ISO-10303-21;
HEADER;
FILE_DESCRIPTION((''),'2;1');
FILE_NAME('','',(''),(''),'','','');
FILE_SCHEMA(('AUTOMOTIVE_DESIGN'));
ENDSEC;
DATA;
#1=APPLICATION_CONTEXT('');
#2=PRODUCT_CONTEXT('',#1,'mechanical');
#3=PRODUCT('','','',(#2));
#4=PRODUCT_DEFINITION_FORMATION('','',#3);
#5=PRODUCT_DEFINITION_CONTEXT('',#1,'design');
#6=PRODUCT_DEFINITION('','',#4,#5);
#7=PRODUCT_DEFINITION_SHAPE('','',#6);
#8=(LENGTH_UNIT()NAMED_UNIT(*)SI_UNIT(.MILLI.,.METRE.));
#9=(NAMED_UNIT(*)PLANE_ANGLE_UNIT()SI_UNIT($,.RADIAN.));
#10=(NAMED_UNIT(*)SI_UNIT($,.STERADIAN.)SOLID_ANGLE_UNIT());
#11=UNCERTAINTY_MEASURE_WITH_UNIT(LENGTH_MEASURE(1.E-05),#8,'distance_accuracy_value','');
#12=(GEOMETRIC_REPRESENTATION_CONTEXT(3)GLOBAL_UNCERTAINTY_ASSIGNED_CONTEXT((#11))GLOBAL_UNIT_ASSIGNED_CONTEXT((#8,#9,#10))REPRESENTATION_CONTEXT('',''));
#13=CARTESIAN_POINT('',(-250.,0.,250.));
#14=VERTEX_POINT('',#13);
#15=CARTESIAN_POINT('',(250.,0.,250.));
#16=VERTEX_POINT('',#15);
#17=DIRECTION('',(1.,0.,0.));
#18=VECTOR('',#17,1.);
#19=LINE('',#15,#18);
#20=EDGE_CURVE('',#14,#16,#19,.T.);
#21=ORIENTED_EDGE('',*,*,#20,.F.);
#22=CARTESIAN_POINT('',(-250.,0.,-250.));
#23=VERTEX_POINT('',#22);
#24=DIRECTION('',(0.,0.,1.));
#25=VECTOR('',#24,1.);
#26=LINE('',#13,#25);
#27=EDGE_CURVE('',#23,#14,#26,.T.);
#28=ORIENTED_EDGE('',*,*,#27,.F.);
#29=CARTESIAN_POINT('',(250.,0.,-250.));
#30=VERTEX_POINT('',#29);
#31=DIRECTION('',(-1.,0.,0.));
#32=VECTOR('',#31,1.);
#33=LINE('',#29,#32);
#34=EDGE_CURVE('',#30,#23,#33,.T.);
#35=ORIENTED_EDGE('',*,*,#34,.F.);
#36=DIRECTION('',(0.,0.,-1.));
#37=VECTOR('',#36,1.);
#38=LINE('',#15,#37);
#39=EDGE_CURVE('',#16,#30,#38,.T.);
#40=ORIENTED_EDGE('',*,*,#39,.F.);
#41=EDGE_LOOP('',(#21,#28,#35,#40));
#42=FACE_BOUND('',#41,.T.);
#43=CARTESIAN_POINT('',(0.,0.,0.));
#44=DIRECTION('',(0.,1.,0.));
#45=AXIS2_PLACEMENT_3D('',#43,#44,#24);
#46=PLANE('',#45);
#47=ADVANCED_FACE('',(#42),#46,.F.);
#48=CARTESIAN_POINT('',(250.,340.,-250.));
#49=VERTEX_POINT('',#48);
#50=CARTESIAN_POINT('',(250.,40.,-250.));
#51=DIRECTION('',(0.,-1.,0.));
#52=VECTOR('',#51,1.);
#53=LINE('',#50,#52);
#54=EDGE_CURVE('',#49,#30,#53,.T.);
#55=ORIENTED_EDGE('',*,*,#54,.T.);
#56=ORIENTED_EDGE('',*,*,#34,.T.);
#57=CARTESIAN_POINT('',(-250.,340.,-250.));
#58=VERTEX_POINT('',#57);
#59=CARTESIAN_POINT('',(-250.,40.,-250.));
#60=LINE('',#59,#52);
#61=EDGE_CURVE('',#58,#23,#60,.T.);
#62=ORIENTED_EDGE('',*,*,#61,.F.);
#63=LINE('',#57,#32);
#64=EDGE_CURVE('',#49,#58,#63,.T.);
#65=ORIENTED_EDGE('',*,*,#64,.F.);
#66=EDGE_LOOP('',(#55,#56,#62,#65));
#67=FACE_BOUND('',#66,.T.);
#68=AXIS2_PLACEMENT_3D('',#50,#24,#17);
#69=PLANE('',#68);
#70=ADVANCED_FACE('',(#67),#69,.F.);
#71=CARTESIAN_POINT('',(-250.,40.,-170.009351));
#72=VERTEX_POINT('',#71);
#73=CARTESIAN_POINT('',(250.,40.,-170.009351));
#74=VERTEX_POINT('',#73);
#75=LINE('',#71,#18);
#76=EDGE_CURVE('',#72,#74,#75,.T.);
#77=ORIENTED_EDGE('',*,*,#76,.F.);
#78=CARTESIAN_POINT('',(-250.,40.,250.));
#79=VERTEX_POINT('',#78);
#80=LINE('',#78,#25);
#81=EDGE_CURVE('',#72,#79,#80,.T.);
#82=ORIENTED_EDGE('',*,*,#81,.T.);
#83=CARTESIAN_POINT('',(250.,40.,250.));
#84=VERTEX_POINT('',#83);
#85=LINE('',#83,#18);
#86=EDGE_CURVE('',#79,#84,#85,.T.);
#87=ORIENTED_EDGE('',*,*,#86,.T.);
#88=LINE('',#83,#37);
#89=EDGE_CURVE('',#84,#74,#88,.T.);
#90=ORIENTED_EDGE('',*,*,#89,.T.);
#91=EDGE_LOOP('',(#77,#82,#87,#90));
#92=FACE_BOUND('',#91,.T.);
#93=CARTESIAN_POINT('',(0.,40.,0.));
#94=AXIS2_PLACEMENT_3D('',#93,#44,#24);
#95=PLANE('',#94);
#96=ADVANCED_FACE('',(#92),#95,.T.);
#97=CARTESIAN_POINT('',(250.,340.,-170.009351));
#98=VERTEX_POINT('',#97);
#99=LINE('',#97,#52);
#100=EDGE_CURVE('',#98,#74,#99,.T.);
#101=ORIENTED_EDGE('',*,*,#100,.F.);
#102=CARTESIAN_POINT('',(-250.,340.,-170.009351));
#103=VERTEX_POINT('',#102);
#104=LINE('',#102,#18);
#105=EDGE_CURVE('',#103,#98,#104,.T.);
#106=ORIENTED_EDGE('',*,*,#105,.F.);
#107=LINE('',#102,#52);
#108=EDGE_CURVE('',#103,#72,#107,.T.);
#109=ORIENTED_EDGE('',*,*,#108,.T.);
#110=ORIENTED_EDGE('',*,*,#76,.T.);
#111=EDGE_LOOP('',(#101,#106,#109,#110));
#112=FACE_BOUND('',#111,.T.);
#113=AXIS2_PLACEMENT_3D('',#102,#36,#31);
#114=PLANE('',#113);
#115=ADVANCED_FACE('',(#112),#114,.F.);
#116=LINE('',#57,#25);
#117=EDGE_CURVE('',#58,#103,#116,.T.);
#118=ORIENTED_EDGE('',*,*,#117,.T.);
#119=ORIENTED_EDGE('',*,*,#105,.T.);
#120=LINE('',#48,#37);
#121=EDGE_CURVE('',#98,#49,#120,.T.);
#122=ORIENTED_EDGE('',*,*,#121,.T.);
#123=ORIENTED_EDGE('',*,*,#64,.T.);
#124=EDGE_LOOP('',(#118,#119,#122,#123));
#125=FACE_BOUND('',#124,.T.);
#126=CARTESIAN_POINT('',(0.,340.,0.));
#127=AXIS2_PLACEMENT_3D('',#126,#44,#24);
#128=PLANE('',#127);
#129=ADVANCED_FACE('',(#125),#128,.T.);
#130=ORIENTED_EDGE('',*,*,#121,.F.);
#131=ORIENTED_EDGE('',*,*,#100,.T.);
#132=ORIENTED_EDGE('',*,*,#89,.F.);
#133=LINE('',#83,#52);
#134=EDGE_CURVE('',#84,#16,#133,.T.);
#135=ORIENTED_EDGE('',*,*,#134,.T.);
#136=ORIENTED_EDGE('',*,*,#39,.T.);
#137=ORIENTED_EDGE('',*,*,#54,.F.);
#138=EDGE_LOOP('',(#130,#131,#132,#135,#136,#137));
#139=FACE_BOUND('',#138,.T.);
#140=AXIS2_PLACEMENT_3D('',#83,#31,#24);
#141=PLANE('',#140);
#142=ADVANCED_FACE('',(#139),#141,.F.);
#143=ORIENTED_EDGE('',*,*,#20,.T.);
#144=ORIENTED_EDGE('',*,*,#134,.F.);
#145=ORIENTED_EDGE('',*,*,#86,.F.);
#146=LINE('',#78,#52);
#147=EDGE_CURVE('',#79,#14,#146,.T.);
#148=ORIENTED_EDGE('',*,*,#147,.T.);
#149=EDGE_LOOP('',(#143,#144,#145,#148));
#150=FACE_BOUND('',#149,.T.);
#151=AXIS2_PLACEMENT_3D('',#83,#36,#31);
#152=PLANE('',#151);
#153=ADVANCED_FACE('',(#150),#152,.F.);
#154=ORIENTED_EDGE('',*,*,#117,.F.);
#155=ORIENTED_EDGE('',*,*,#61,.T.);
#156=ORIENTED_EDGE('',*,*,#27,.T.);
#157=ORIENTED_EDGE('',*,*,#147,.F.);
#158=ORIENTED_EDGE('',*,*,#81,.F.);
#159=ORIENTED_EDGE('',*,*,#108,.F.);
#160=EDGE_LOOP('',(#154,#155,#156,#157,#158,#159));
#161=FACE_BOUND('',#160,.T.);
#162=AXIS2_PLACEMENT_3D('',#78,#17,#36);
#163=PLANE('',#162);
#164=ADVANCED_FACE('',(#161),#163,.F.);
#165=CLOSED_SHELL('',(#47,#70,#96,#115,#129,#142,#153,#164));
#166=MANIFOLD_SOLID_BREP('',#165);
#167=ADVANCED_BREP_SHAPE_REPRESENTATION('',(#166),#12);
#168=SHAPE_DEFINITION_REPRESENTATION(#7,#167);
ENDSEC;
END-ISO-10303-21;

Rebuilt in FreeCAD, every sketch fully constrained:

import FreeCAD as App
import Part
import Sketcher
from FreeCAD import Vector

doc = App.newDocument("Part")
body = doc.addObject("PartDesign::Body", "Body")

sketch1 = doc.addObject("Sketcher::SketchObject", "Sketch")
body.addObject(sketch1)
sketch1.AttachmentSupport = (doc.XZ_Plane, [""])
sketch1.MapMode = "FlatFace"
sketch1.addGeometry([
    Part.LineSegment(Vector(-250, -250, 0), Vector(-250, 250, 0)),
    Part.LineSegment(Vector(-250, 250, 0), Vector(250, 250, 0)),
    Part.LineSegment(Vector(250, 250, 0), Vector(250, -250, 0)),
    Part.LineSegment(Vector(250, -250, 0), Vector(-250, -250, 0)),
], False)
sketch1.addConstraint([
    Sketcher.Constraint("Coincident", 0, 2, 1, 1),
    Sketcher.Constraint("Coincident", 1, 2, 2, 1),
    Sketcher.Constraint("Coincident", 2, 2, 3, 1),
    Sketcher.Constraint("Coincident", 3, 2, 0, 1),
    Sketcher.Constraint("Vertical", 0),
    Sketcher.Constraint("Horizontal", 1),
    Sketcher.Constraint("Vertical", 2),
    Sketcher.Constraint("Horizontal", 3),
    Sketcher.Constraint("Symmetric", 0, 2, 2, 2, -1, 1),
    Sketcher.Constraint("Equal", 3, 0),
    Sketcher.Constraint("DistanceX", 1, 1, 1, 2, 500.0),
])
pad1 = doc.addObject("PartDesign::Pad", "Pad")
body.addObject(pad1)
pad1.Profile = sketch1
pad1.Length = 40
pad1.Reversed = True

sketch2 = doc.addObject("Sketcher::SketchObject", "Sketch001")
body.addObject(sketch2)
sketch2.AttachmentSupport = (doc.XZ_Plane, [""])
sketch2.MapMode = "FlatFace"
sketch2.AttachmentOffset = App.Placement(Vector(0, 0, -40), App.Rotation())
sketch2.addGeometry([
    Part.LineSegment(Vector(-250, -250, 0), Vector(-250, -170, 0)),
    Part.LineSegment(Vector(-250, -170, 0), Vector(250, -170, 0)),
    Part.LineSegment(Vector(250, -170, 0), Vector(250, -250, 0)),
    Part.LineSegment(Vector(250, -250, 0), Vector(-250, -250, 0)),
], False)
sketch2.addConstraint([
    Sketcher.Constraint("Coincident", 0, 2, 1, 1),
    Sketcher.Constraint("Coincident", 1, 2, 2, 1),
    Sketcher.Constraint("Coincident", 2, 2, 3, 1),
    Sketcher.Constraint("Coincident", 3, 2, 0, 1),
    Sketcher.Constraint("Vertical", 0),
    Sketcher.Constraint("Horizontal", 1),
    Sketcher.Constraint("Vertical", 2),
    Sketcher.Constraint("Horizontal", 3),
    Sketcher.Constraint("DistanceX", 1, 1, 1, 2, 500.0),
    Sketcher.Constraint("DistanceX", 0, 2, -1, 1, 250.0),
    Sketcher.Constraint("DistanceY", 2, 2, -1, 1, 250.0),
    Sketcher.Constraint("DistanceY", 0, 1, 0, 2, 79.990649),
])
pad2 = doc.addObject("PartDesign::Pad", "Pad001")
body.addObject(pad2)
pad2.Profile = sketch2
pad2.Length = 300
pad2.Reversed = True

doc.recompute()
